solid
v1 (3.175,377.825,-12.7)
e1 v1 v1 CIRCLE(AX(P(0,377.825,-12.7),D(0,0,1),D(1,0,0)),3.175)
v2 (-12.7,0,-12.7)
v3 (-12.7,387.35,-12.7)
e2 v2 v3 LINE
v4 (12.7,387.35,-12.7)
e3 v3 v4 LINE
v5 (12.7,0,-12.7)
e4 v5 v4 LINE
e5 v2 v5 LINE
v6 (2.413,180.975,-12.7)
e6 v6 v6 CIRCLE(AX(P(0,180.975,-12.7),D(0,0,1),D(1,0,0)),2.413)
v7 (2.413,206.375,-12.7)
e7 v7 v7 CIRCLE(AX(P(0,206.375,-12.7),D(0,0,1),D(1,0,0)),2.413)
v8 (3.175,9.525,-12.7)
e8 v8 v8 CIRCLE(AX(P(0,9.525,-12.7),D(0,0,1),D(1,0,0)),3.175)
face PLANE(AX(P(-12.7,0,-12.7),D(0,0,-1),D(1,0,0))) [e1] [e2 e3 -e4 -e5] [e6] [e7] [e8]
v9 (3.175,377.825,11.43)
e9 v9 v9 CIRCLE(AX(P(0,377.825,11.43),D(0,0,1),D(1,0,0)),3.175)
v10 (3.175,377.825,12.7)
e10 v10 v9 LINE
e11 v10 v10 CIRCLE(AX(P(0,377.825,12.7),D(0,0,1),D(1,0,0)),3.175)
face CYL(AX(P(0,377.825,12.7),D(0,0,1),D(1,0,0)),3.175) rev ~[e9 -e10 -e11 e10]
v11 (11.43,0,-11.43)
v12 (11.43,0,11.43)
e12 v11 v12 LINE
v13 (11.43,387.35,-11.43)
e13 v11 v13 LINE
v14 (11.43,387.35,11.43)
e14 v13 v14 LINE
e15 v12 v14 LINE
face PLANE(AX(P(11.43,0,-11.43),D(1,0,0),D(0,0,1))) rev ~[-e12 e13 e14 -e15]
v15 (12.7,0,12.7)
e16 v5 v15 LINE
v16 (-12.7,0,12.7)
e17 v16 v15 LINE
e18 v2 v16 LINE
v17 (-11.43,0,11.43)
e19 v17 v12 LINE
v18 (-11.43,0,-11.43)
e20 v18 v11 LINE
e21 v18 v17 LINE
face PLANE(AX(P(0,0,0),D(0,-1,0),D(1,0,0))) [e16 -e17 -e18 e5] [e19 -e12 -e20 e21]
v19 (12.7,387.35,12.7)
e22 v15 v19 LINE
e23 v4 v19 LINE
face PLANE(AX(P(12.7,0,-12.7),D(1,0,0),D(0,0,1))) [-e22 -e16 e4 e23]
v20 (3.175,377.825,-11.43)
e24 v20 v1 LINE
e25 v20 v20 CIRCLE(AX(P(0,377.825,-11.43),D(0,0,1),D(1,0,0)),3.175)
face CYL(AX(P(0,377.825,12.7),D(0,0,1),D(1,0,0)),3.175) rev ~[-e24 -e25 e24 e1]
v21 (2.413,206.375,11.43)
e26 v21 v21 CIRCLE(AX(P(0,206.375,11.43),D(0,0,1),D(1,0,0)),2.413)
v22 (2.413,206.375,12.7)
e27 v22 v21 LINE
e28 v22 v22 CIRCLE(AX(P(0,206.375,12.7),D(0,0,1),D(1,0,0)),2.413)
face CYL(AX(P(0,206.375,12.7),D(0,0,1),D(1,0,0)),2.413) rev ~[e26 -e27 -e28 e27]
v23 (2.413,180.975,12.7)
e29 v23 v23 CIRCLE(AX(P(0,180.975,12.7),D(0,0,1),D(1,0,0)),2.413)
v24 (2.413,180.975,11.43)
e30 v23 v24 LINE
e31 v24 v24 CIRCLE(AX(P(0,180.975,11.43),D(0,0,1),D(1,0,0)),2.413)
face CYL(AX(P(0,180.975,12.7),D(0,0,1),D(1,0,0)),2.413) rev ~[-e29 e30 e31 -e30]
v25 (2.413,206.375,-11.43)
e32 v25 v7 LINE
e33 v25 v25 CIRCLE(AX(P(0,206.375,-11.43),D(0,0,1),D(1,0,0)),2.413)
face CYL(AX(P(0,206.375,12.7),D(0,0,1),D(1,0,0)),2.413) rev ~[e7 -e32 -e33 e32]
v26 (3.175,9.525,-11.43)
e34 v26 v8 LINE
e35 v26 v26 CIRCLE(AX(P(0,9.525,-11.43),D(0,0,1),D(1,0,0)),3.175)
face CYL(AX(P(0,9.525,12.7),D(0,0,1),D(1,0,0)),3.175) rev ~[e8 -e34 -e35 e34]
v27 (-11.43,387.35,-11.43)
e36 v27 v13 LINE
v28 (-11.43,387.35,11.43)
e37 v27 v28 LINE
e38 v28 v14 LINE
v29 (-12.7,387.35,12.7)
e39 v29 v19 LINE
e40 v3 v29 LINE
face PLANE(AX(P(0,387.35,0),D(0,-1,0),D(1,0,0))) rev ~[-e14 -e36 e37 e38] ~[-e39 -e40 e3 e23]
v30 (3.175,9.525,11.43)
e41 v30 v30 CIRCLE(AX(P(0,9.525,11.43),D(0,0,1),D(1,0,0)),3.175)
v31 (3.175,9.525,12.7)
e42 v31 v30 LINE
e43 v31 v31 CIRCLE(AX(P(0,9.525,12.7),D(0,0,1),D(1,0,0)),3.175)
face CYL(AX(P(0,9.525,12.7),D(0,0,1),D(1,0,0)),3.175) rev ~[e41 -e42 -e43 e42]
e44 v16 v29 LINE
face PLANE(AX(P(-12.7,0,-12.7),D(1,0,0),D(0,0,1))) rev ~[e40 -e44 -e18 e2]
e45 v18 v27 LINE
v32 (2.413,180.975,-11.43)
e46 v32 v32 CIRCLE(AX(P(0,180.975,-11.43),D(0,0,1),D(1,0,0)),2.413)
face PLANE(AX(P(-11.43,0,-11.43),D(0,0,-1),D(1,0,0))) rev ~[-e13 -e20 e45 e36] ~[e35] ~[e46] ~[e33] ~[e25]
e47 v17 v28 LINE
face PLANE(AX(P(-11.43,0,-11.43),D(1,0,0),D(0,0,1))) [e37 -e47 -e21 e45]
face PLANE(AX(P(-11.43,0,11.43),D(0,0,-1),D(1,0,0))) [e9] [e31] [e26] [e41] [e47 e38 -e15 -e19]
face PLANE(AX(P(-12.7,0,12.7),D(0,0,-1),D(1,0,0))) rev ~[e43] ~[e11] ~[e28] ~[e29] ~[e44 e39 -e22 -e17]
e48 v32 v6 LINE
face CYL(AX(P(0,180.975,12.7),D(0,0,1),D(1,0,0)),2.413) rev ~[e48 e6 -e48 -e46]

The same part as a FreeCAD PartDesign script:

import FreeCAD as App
import Part
import Sketcher

V = App.Vector
Q = App.Units.Quantity

doc = App.newDocument("Part")
body = doc.addObject("PartDesign::Body", "Body")

sketch1 = body.newObject("Sketcher::SketchObject", "Sketch")
sketch1.AttachmentSupport = (doc.getObject("XZ_Plane"), [""])
sketch1.MapMode = "FlatFace"
sketch1.addGeometry([
    Part.LineSegment(V(-13, 13, 0), V(-13, -13, 0)),
    Part.LineSegment(V(-13, -13, 0), V(13, -13, 0)),
    Part.LineSegment(V(13, -13, 0), V(13, 13, 0)),
    Part.LineSegment(V(13, 13, 0), V(-13, 13, 0)),
    Part.LineSegment(V(11, -11, 0), V(-11, -11, 0)),
    Part.LineSegment(V(-11, -11, 0), V(-11, 11, 0)),
    Part.LineSegment(V(-11, 11, 0), V(11, 11, 0)),
    Part.LineSegment(V(11, 11, 0), V(11, -11, 0)),
], False)
sketch1.addConstraint([
    Sketcher.Constraint("Coincident", 0, 2, 1, 1),
    Sketcher.Constraint("Coincident", 1, 2, 2, 1),
    Sketcher.Constraint("Coincident", 2, 2, 3, 1),
    Sketcher.Constraint("Coincident", 3, 2, 0, 1),
    Sketcher.Constraint("Coincident", 4, 2, 5, 1),
    Sketcher.Constraint("Coincident", 5, 2, 6, 1),
    Sketcher.Constraint("Coincident", 6, 2, 7, 1),
    Sketcher.Constraint("Coincident", 7, 2, 4, 1),
    Sketcher.Constraint("Vertical", 0),
    Sketcher.Constraint("Horizontal", 1),
    Sketcher.Constraint("Vertical", 2),
    Sketcher.Constraint("Horizontal", 3),
    Sketcher.Constraint("Horizontal", 4),
    Sketcher.Constraint("Vertical", 5),
    Sketcher.Constraint("Horizontal", 6),
    Sketcher.Constraint("Vertical", 7),
    Sketcher.Constraint("Symmetric", 0, 2, 2, 2, -1, 1),
    Sketcher.Constraint("Symmetric", 4, 2, 6, 2, -1, 1),
    Sketcher.Constraint("Equal", 3, 0),
    Sketcher.Constraint("Equal", 6, 5),
    Sketcher.Constraint("DistanceX", 1, 1, 1, 2, Q("1 in")),
    Sketcher.Constraint("DistanceX", 4, 2, 4, 1, Q("0.9 in")),
])
pad1 = body.newObject("PartDesign::Pad", "Pad")
pad1.Profile = sketch1
pad1.Length = Q("15.25 in")
pad1.Reversed = True

sketch2 = body.newObject("Sketcher::SketchObject", "Sketch001")
sketch2.AttachmentSupport = (doc.getObject("XY_Plane"), [""])
sketch2.MapMode = "FlatFace"
sketch2.AttachmentOffset = App.Placement(V(0, 0, 0.5 * 25.4), App.Rotation())
sketch2.addGeometry([
    Part.Circle(V(0, 9.5, 0), V(0, 0, 1), 3.2),
    Part.Circle(V(0, 377.8, 0), V(0, 0, 1), 3.2),
    Part.Circle(V(0, 181, 0), V(0, 0, 1), 2.4),
    Part.Circle(V(0, 206.4, 0), V(0, 0, 1), 2.4),
], False)
sketch2.addConstraint([
    Sketcher.Constraint("Equal", 0, 1),
    Sketcher.Constraint("Equal", 2, 3),
    Sketcher.Constraint("PointOnObject", 0, 3, -2),
    Sketcher.Constraint("PointOnObject", 1, 3, -2),
    Sketcher.Constraint("PointOnObject", 2, 3, -2),
    Sketcher.Constraint("PointOnObject", 3, 3, -2),
    Sketcher.Constraint("Diameter", 0, Q("0.25 in")),
    Sketcher.Constraint("Diameter", 2, Q("0.19 in")),
    Sketcher.Constraint("DistanceY", 2, 3, 3, 3, Q("1 in")),
    Sketcher.Constraint("DistanceY", 0, 3, 1, 3, Q("14.5 in")),
    Sketcher.Constraint("DistanceY", 0, 3, 2, 3, Q("6.75 in")),
    Sketcher.Constraint("DistanceY", -1, 1, 0, 3, Q("0.375 in")),
])
pocket1 = body.newObject("PartDesign::Pocket", "Pocket")
pocket1.Profile = sketch2
pocket1.Type = "ThroughAll"

doc.recompute()
